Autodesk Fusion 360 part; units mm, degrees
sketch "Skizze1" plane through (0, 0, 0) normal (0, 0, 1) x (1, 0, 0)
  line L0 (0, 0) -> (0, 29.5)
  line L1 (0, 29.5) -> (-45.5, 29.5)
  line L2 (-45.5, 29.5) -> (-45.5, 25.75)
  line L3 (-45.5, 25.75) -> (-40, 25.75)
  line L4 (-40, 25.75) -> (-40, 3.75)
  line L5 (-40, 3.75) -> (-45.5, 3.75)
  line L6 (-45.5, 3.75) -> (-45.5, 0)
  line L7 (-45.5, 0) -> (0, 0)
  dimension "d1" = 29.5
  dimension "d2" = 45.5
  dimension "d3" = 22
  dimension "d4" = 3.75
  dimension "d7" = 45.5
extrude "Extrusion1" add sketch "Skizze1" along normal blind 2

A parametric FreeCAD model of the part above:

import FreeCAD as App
import Part
import Sketcher

V = App.Vector


def add_polygon(sketch, points):
    """Adds a closed chain of lines whose ends are joined by coincident constraints."""
    first, n = sketch.GeometryCount, len(points)
    for a, b in zip(points, points[1:] + points[:1]):
        sketch.addGeometry(Part.LineSegment(App.Vector(*a, 0), App.Vector(*b, 0)), False)
    for i in range(n):
        sketch.addConstraint(Sketcher.Constraint("Coincident", first + i, 2, first + (i + 1) % n, 1))

doc = App.newDocument("Part")
body = doc.addObject("PartDesign::Body", "Body")

sketch1 = doc.addObject("Sketcher::SketchObject", "Sketch")
body.addObject(sketch1)
sketch1.AttachmentSupport = (doc.XY_Plane, [""])
sketch1.MapMode = "FlatFace"
add_polygon(sketch1, [(-45.5, 0), (0, 0), (0, 29.5), (-45.5, 29.5), (-45.5, 25.8), (-40, 25.8), (-40, 3.8), (-45.5, 3.8)])
sketch1.addConstraint([
    Sketcher.Constraint("Horizontal", 0),
    Sketcher.Constraint("Vertical", 1),
    Sketcher.Constraint("Horizontal", 2),
    Sketcher.Constraint("Vertical", 3),
    Sketcher.Constraint("Horizontal", 4),
    Sketcher.Constraint("Vertical", 5),
    Sketcher.Constraint("Horizontal", 6),
    Sketcher.Constraint("Vertical", 7),
    Sketcher.Constraint("Coincident", 0, 2, -1, 1),
    Sketcher.Constraint("Vertical", 3, 2, 6, 2),
    Sketcher.Constraint("Equal", 3, 7),
    Sketcher.Constraint("DistanceY", 5, 2, 5, 1, 22.0),
    Sketcher.Constraint("DistanceX", 0, 1, 0, 2, 45.5),
    Sketcher.Constraint("DistanceY", 1, 1, 1, 2, 29.5),
    Sketcher.Constraint("DistanceX", 4, 1, 4, 2, 5.5),
])
pad1 = doc.addObject("PartDesign::Pad", "Pad")
body.addObject(pad1)
pad1.Profile = sketch1
pad1.Length = 2

doc.recompute()
